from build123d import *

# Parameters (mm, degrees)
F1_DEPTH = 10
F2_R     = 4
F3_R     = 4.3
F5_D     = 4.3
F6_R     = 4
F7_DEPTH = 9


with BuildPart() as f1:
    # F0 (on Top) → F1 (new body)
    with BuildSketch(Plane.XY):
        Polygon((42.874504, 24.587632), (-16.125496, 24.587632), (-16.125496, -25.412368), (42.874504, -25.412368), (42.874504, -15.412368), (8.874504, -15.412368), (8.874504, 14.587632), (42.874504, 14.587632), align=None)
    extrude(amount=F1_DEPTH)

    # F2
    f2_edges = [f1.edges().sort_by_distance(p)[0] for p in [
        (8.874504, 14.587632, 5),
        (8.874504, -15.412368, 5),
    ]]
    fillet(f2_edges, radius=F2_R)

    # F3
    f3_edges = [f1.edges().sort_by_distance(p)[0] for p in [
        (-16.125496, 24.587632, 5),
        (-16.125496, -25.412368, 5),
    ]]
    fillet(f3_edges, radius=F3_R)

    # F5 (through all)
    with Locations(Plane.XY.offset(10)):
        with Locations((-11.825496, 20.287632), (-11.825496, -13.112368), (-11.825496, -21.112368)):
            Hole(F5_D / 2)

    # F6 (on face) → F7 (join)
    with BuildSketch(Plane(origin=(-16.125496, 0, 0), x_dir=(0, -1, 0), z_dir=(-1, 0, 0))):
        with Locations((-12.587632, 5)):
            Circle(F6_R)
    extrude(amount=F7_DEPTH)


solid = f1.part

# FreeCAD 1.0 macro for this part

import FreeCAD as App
import Part
import Sketcher
from FreeCAD import Vector


def edges_at(feature, points):
    """Names of the edges that pass closest to the given points."""
    edges = feature.Shape.Edges
    near = lambda p: min(range(len(edges)), key=lambda i: edges[i].distToShape(Part.Vertex(*p))[0])
    return sorted({f"Edge{near(p) + 1}" for p in points})


def add_polygon(sketch, points):
    """Adds a closed chain of lines whose ends are joined by coincident constraints."""
    first, n = sketch.GeometryCount, len(points)
    for a, b in zip(points, points[1:] + points[:1]):
        sketch.addGeometry(Part.LineSegment(App.Vector(*a, 0), App.Vector(*b, 0)), False)
    for i in range(n):
        sketch.addConstraint(Sketcher.Constraint("Coincident", first + i, 2, first + (i + 1) % n, 1))

doc = App.newDocument("Part")
body = doc.addObject("PartDesign::Body", "Body")

sketch1 = body.newObject("Sketcher::SketchObject", "Sketch")
sketch1.AttachmentSupport = (doc.getObject("XY_Plane"), [""])
sketch1.MapMode = "FlatFace"
add_polygon(sketch1, [(43, 25), (-16, 25), (-16, -25), (43, -25), (43, -15), (9, -15), (9, 15), (43, 15)])
sketch1.addConstraint([
    Sketcher.Constraint("Horizontal", 0),
    Sketcher.Constraint("Vertical", 1),
    Sketcher.Constraint("Horizontal", 2),
    Sketcher.Constraint("Vertical", 3),
    Sketcher.Constraint("Horizontal", 4),
    Sketcher.Constraint("Vertical", 5),
    Sketcher.Constraint("Horizontal", 6),
    Sketcher.Constraint("Vertical", 7),
    Sketcher.Constraint("Vertical", 3, 2, 6, 2),
    Sketcher.Constraint("Equal", 3, 7),
    Sketcher.Constraint("DistanceX", 0, 2, 0, 1, 59.0),
    Sketcher.Constraint("DistanceX", 4, 2, 4, 1, 34.0),
    Sketcher.Constraint("DistanceY", 1, 2, 1, 1, 50.0),
    Sketcher.Constraint("DistanceY", 3, 1, 3, 2, 10.0),
    Sketcher.Constraint("DistanceY", -1, 1, 0, 2, 24.587632),
    Sketcher.Constraint("DistanceX", 0, 2, -1, 1, 16.125496),
])
pad1 = body.newObject("PartDesign::Pad", "Pad")
pad1.Profile = sketch1
pad1.Length = 10
doc.recompute()

fillet = body.newObject("PartDesign::Fillet", "Fillet")
fillet.Base = (pad1, edges_at(pad1, [(8.875, 14.588, 5), (8.875, -15.412, 5)]))
fillet.Radius = 4
doc.recompute()

fillet2 = body.newObject("PartDesign::Fillet", "Fillet001")
fillet2.Base = (fillet, edges_at(fillet, [(-16.125, 24.588, 5), (-16.125, -25.412, 5)]))
fillet2.Radius = 4.3

sketch2 = body.newObject("Sketcher::SketchObject", "Sketch001")
sketch2.AttachmentSupport = (doc.getObject("XY_Plane"), [""])
sketch2.MapMode = "FlatFace"
sketch2.AttachmentOffset = App.Placement(Vector(0, 0, 10), App.Rotation())
sketch2.addGeometry([
    Part.Circle(Vector(-11.8, 20.3, 0), Vector(0, 0, 1), 2.1),
    Part.Circle(Vector(-11.8, -13.1, 0), Vector(0, 0, 1), 2.1),
    Part.Circle(Vector(-11.8, -21.1, 0), Vector(0, 0, 1), 2.1),
], False)
sketch2.addConstraint([
    Sketcher.Constraint("Equal", 0, 1),
    Sketcher.Constraint("Equal", 1, 2),
    Sketcher.Constraint("Vertical", 0, 3, 1, 3),
    Sketcher.Constraint("Vertical", 1, 3, 2, 3),
    Sketcher.Constraint("Diameter", 0, 4.3),
    Sketcher.Constraint("DistanceY", 2, 3, 1, 3, 8.0),
    Sketcher.Constraint("DistanceY", 1, 3, 0, 3, 33.4),
    Sketcher.Constraint("DistanceY", -1, 1, 0, 3, 20.287632),
    Sketcher.Constraint("DistanceX", 0, 3, -1, 1, 11.825496),
])
doc.recompute()
hole = body.newObject("PartDesign::Hole", "Hole")
hole.Profile = sketch2
hole.ThreadType = "None"
hole.Diameter = 4.3
hole.DepthType = "ThroughAll"

sketch3 = body.newObject("Sketcher::SketchObject", "Sketch002")
sketch3.AttachmentSupport = (doc.getObject("YZ_Plane"), [""])
sketch3.MapMode = "FlatFace"
sketch3.AttachmentOffset = App.Placement(Vector(0, 0, -16.125496), App.Rotation())
sketch3.addGeometry(Part.Circle(Vector(12.6, 5, 0), Vector(0, 0, 1), 4), False)
sketch3.addConstraint([
    Sketcher.Constraint("Diameter", 0, 8.0),
    Sketcher.Constraint("DistanceY", -1, 1, 0, 3, 5.0),
    Sketcher.Constraint("DistanceX", -1, 1, 0, 3, 12.587632),
])
pad2 = body.newObject("PartDesign::Pad", "Pad001")
pad2.Profile = sketch3
pad2.Length = 9
pad2.Reversed = True

doc.recompute()
